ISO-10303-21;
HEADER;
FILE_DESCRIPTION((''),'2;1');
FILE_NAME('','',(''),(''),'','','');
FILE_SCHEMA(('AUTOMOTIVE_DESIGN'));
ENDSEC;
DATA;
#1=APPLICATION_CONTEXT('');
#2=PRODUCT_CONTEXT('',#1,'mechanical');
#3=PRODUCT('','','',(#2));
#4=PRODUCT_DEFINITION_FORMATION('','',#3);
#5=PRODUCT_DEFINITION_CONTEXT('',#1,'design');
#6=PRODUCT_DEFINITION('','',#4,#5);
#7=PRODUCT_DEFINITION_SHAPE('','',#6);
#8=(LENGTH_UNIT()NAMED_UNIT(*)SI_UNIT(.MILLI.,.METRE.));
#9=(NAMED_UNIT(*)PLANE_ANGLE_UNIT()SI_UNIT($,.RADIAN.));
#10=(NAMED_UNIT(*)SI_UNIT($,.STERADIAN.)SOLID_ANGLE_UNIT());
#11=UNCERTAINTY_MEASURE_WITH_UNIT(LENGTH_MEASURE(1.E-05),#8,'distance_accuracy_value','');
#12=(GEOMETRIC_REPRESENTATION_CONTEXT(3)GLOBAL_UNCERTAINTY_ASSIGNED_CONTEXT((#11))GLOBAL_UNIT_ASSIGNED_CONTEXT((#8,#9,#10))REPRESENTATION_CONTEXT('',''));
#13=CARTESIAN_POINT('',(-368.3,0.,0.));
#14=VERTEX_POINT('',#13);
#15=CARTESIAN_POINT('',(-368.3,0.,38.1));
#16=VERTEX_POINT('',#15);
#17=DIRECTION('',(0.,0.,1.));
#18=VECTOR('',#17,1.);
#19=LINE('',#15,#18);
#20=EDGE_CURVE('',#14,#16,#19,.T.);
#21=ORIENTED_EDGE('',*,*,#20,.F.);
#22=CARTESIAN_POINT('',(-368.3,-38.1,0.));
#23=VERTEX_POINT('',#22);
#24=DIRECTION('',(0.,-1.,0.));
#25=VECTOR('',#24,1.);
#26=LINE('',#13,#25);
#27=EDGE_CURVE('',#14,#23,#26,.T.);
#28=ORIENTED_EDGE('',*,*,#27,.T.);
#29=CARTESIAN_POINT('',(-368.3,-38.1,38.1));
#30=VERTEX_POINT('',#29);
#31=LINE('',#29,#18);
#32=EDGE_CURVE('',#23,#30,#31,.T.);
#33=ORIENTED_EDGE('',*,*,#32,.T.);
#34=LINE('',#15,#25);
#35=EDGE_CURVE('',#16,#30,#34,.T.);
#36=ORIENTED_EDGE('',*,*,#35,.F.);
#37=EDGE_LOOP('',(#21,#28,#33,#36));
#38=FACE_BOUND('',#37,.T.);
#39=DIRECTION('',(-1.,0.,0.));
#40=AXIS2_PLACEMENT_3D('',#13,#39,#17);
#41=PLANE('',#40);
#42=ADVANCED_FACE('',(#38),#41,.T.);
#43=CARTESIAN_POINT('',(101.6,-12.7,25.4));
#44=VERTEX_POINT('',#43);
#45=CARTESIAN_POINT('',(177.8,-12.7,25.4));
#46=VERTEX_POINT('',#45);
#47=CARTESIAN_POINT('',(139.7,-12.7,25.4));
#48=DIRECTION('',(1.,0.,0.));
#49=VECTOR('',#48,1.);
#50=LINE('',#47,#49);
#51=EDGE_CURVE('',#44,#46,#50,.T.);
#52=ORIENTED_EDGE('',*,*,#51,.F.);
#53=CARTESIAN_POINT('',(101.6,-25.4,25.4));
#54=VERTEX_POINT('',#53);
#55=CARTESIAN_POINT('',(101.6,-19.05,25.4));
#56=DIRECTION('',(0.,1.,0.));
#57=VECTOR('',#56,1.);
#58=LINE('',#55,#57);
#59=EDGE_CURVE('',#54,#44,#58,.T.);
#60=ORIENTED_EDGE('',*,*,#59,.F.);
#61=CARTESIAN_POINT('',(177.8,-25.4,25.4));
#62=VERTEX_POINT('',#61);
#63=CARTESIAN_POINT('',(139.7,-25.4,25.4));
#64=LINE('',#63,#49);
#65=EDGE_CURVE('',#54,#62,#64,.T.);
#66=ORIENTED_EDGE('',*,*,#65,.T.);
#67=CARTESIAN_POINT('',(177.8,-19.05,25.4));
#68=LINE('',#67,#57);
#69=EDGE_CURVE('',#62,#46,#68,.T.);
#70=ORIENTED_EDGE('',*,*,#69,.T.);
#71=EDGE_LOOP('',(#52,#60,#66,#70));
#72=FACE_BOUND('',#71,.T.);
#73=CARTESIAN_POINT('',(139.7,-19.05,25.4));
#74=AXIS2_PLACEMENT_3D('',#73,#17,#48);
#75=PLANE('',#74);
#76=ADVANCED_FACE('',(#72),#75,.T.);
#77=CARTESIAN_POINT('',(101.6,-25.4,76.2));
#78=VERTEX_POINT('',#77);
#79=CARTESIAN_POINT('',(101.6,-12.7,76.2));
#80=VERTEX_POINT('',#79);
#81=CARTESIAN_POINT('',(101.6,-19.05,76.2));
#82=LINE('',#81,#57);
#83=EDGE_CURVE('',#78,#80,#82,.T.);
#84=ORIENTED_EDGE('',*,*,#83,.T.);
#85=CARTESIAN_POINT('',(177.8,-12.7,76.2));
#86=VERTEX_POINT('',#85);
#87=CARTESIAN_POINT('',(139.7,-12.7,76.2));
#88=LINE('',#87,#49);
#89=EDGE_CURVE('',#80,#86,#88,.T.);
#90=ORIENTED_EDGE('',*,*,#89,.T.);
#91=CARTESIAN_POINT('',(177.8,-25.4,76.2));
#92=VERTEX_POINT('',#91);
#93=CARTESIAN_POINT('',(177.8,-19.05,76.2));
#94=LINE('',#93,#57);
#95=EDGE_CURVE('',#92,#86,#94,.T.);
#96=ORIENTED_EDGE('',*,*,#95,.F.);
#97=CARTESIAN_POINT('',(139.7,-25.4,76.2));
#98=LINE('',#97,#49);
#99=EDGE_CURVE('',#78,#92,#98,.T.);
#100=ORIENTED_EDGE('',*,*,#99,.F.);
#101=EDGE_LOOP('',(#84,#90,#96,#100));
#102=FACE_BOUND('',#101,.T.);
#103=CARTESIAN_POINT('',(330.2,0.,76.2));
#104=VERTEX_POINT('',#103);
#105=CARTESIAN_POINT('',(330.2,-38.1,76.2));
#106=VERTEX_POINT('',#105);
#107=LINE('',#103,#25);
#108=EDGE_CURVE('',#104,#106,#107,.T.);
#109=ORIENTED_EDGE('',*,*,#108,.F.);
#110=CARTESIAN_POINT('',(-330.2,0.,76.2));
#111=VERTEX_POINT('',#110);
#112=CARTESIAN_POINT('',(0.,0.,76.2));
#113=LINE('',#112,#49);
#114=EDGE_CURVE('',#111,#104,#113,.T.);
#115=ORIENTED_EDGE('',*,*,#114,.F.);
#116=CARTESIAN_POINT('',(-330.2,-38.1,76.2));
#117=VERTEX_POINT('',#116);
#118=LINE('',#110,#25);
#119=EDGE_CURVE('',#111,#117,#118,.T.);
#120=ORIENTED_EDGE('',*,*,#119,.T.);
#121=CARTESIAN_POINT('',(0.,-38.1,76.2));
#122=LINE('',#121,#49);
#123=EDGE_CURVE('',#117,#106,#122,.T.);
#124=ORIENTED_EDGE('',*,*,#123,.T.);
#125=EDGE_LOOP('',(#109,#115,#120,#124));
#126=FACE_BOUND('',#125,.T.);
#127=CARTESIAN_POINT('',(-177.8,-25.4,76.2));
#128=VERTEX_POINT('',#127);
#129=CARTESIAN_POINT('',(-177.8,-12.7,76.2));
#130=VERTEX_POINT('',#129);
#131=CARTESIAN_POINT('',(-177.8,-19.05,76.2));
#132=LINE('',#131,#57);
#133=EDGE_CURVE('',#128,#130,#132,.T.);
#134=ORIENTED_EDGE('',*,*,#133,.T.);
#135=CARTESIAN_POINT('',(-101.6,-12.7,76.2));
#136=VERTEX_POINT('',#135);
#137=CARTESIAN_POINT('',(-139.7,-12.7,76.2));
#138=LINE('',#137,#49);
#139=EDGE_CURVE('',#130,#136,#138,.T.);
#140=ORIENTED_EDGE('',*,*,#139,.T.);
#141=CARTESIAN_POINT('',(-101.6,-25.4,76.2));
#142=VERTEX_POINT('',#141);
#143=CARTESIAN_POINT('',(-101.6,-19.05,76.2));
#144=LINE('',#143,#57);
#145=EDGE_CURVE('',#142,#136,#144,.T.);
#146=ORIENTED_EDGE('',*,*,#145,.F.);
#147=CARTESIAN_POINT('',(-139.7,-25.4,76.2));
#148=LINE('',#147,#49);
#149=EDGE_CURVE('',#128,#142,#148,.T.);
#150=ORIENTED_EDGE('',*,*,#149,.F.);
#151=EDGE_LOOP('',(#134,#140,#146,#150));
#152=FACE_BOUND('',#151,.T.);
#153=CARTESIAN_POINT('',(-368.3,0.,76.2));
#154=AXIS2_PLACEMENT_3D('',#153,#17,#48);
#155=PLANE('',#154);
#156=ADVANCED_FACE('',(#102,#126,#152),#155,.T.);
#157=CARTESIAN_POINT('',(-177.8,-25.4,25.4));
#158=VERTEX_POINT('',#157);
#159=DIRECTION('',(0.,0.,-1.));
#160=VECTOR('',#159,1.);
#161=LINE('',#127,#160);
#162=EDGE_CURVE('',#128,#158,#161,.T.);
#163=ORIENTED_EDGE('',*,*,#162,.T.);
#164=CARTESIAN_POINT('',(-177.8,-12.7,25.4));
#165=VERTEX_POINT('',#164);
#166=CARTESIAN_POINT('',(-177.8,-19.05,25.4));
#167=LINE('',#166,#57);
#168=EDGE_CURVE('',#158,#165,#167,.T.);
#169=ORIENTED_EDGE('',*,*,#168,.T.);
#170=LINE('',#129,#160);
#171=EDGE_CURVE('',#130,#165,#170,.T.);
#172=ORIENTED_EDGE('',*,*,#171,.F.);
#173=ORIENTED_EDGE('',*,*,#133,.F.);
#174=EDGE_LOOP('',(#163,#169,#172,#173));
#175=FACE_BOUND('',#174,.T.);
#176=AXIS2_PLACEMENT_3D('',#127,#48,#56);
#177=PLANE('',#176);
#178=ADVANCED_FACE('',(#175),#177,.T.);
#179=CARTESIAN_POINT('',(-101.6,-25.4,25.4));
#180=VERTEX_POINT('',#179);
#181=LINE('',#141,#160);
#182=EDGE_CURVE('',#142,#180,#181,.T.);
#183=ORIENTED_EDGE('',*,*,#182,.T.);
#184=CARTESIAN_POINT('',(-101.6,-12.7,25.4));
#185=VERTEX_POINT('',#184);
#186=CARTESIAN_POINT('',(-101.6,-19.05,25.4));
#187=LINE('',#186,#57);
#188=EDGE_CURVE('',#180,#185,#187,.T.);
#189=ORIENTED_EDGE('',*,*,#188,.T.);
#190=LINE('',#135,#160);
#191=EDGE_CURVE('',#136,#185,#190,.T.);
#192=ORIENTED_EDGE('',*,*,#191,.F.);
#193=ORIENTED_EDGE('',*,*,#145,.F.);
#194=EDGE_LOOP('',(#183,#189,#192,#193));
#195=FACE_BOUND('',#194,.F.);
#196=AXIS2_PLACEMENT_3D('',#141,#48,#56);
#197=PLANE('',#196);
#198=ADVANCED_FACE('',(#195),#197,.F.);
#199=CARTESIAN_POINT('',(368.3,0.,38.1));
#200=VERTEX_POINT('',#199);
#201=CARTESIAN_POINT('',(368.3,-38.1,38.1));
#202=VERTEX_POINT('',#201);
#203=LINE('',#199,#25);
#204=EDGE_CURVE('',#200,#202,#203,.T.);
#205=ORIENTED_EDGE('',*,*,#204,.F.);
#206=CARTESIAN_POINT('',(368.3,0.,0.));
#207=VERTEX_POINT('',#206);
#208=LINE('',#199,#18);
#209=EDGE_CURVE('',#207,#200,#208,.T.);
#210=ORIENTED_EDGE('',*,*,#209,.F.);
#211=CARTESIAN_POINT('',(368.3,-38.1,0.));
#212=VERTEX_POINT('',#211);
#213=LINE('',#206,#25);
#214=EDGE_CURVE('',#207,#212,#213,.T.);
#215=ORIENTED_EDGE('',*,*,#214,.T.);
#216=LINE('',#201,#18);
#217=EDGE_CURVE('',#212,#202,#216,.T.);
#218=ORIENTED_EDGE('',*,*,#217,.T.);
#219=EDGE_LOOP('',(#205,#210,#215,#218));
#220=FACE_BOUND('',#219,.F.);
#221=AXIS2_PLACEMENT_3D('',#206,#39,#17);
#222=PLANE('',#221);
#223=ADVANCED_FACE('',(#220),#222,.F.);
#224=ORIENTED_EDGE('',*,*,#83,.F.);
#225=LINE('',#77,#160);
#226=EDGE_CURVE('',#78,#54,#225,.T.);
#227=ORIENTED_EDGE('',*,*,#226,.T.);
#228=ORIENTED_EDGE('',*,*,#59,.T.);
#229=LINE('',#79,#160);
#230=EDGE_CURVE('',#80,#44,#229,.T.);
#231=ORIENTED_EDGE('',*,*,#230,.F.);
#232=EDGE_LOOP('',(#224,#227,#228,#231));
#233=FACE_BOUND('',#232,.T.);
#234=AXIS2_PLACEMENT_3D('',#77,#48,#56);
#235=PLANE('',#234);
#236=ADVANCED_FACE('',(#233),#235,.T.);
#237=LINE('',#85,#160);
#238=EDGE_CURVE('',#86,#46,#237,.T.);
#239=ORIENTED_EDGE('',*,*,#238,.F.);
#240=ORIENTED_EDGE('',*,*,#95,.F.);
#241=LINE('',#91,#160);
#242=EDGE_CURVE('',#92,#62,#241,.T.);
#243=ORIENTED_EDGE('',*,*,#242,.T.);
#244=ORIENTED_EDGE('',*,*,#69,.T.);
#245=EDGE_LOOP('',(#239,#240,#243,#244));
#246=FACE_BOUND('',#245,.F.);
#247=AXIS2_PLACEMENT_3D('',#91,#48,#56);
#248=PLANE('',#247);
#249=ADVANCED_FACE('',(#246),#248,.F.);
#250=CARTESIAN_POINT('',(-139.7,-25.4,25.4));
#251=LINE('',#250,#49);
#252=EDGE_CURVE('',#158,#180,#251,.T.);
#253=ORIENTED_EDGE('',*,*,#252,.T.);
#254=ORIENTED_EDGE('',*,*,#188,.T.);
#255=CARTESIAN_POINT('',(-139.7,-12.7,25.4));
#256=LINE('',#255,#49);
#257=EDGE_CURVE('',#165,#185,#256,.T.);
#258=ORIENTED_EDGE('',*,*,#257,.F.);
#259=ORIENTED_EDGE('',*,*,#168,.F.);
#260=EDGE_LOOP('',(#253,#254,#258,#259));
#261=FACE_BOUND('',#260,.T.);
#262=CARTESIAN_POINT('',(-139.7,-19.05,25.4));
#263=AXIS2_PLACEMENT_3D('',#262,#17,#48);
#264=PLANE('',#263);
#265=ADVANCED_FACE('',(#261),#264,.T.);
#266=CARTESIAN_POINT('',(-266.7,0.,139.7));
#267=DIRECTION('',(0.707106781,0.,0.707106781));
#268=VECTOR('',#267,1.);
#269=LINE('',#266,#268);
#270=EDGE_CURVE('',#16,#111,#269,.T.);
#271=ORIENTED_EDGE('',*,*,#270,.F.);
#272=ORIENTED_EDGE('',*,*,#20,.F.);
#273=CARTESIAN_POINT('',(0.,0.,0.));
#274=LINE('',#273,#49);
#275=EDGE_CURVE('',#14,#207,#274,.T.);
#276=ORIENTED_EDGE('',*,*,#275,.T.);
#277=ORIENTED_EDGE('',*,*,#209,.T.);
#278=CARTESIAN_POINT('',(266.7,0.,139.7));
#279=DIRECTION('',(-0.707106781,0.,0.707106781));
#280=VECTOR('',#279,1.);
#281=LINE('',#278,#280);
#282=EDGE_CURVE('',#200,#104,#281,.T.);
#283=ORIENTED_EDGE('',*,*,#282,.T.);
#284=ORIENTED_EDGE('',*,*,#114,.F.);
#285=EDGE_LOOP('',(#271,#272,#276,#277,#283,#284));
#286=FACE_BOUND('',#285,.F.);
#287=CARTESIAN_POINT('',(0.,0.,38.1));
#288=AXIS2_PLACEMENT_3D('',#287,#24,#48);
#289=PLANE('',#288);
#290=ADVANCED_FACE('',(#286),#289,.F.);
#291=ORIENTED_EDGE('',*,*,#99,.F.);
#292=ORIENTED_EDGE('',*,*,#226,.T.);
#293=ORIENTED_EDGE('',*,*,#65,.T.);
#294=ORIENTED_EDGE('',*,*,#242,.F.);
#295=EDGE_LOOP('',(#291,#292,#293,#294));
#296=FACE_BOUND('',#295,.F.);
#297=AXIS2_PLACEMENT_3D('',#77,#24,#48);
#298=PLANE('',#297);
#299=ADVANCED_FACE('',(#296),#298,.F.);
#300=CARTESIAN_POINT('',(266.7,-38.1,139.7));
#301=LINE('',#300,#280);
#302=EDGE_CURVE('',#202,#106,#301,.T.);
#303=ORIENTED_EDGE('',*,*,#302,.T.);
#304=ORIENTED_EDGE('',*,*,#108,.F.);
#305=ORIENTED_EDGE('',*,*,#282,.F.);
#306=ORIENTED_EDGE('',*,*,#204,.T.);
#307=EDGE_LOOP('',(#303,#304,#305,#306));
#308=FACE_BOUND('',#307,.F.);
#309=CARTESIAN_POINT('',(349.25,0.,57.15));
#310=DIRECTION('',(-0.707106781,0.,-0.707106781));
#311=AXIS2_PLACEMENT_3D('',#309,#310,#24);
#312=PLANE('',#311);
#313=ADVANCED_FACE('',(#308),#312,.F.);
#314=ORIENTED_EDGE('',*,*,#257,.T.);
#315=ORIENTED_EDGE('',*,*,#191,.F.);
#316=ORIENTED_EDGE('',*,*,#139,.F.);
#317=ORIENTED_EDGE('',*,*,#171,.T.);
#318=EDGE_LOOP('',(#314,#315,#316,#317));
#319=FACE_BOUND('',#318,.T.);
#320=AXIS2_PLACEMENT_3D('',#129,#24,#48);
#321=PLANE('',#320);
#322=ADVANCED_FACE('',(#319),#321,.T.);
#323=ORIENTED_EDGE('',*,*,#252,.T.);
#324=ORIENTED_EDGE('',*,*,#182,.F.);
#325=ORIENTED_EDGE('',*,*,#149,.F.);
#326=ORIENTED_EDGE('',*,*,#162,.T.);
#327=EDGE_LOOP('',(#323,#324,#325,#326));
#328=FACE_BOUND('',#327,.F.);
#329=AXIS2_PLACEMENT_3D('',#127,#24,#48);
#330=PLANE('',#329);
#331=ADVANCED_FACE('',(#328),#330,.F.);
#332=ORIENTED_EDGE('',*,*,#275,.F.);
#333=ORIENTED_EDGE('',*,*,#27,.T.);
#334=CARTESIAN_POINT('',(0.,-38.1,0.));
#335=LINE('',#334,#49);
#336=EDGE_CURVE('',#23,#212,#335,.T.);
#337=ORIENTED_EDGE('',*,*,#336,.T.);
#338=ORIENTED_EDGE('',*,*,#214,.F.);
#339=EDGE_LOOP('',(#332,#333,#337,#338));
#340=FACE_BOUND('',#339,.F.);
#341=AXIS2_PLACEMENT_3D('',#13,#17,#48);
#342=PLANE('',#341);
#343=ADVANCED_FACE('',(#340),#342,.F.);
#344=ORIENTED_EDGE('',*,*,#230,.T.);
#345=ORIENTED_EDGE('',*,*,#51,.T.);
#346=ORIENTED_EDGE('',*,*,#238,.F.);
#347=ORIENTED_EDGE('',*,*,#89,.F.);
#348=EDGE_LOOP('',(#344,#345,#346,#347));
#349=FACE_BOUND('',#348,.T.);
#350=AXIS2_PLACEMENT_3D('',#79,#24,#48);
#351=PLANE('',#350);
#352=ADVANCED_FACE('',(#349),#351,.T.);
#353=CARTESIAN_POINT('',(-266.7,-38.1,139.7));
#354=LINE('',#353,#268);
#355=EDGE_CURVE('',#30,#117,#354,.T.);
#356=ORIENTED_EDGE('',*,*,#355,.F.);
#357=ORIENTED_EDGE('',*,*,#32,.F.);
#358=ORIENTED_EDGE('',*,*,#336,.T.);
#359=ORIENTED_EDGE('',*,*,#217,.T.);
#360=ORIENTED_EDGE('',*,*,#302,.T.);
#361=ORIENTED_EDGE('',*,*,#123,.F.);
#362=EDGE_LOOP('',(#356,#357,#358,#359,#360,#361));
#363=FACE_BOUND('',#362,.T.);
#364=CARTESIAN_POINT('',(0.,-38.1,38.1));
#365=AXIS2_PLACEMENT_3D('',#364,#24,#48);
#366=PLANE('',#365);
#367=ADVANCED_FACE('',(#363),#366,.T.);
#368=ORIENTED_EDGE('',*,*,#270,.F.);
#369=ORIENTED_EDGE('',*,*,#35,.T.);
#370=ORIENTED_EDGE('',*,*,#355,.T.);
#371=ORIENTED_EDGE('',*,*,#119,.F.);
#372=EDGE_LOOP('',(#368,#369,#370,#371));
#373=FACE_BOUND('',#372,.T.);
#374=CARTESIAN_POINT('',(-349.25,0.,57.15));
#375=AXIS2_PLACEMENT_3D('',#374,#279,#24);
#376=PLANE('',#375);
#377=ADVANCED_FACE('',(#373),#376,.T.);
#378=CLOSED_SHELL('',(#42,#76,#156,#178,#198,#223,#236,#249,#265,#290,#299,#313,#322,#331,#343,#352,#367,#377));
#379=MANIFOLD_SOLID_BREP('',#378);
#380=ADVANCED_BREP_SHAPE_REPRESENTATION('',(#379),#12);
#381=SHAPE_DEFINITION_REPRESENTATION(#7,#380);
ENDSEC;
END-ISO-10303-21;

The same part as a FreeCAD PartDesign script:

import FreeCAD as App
import Part
import Sketcher
from FreeCAD import Vector
Q = App.Units.Quantity


def edges_at(feature, points):
    """Names of the edges that pass closest to the given points."""
    edges = feature.Shape.Edges
    near = lambda p: min(range(len(edges)), key=lambda i: edges[i].distToShape(Part.Vertex(*p))[0])
    return sorted({f"Edge{near(p) + 1}" for p in points})


def add_polygon(sketch, points):
    """Adds a closed chain of lines whose ends are joined by coincident constraints."""
    first, n = sketch.GeometryCount, len(points)
    for a, b in zip(points, points[1:] + points[:1]):
        sketch.addGeometry(Part.LineSegment(App.Vector(*a, 0), App.Vector(*b, 0)), False)
    for i in range(n):
        sketch.addConstraint(Sketcher.Constraint("Coincident", first + i, 2, first + (i + 1) % n, 1))

doc = App.newDocument("Part")
body = doc.addObject("PartDesign::Body", "Body")

# Sketch on XZ plane
sketch1 = doc.addObject("Sketcher::SketchObject", "Sketch")
body.addObject(sketch1)
sketch1.AttachmentSupport = (doc.XZ_Plane, [""])
sketch1.MapMode = "FlatFace"
add_polygon(sketch1, [(-368, 76), (-368, 0), (368, 0), (368, 76)])  # lines 0-3
sketch1.addConstraint(Sketcher.Constraint("Vertical", 0))
sketch1.addConstraint(Sketcher.Constraint("Horizontal", 1))
sketch1.addConstraint(Sketcher.Constraint("Vertical", 2))
sketch1.addConstraint(Sketcher.Constraint("Horizontal", 3))
sketch1.addConstraint(Sketcher.Constraint("Symmetric", 0, 2, 1, 2, -1, 1))
sketch1.addConstraint(Sketcher.Constraint("DistanceX", 1, 1, 1, 2, Q("29 in")))
sketch1.addConstraint(Sketcher.Constraint("DistanceY", 0, 2, 0, 1, Q("3 in")))
pad1 = doc.addObject("PartDesign::Pad", "Pad")
body.addObject(pad1)
pad1.Profile = sketch1
pad1.Length = Q("1.5 in")
doc.recompute()

chamfer = doc.addObject("PartDesign::Chamfer", "Chamfer")
body.addObject(chamfer)
chamfer.Base = (pad1, edges_at(pad1, [(-368.3, -19.05, 76.2), (368.3, -19.05, 76.2)]))
chamfer.Size = Q("1.5 in")

# Sketch on XY plane
sketch2 = doc.addObject("Sketcher::SketchObject", "Sketch001")
body.addObject(sketch2)
sketch2.AttachmentSupport = (doc.XY_Plane, [""])
sketch2.MapMode = "FlatFace"
sketch2.AttachmentOffset = App.Placement(Vector(0, 0, 3 * 25.4), App.Rotation())
add_polygon(sketch2, [(-178, -13), (-178, -25), (-102, -25), (-102, -13)])  # lines 0-3
add_polygon(sketch2, [(102, -13), (102, -25), (178, -25), (178, -13)])  # lines 4-7
sketch2.addConstraint(Sketcher.Constraint("Vertical", 0))
sketch2.addConstraint(Sketcher.Constraint("Horizontal", 1))
sketch2.addConstraint(Sketcher.Constraint("Vertical", 2))
sketch2.addConstraint(Sketcher.Constraint("Horizontal", 3))
sketch2.addConstraint(Sketcher.Constraint("Vertical", 4))
sketch2.addConstraint(Sketcher.Constraint("Horizontal", 5))
sketch2.addConstraint(Sketcher.Constraint("Vertical", 6))
sketch2.addConstraint(Sketcher.Constraint("Horizontal", 7))
sketch2.addConstraint(Sketcher.Constraint("Symmetric", 1, 2, 4, 2, -2))
sketch2.addConstraint(Sketcher.Constraint("Symmetric", 3, 2, 6, 2, -2))
sketch2.addConstraint(Sketcher.Constraint("DistanceX", 1, 1, 1, 2, Q("3 in")))
sketch2.addConstraint(Sketcher.Constraint("DistanceY", 0, 2, 0, 1, Q("0.5 in")))
sketch2.addConstraint(Sketcher.Constraint("DistanceX", 0, 2, -1, 1, Q("7 in")))
sketch2.addConstraint(Sketcher.Constraint("DistanceY", 0, 2, -1, 1, Q("1 in")))
pocket1 = doc.addObject("PartDesign::Pocket", "Pocket")
body.addObject(pocket1)
pocket1.Profile = sketch2
pocket1.Length = Q("2 in")

doc.recompute()
